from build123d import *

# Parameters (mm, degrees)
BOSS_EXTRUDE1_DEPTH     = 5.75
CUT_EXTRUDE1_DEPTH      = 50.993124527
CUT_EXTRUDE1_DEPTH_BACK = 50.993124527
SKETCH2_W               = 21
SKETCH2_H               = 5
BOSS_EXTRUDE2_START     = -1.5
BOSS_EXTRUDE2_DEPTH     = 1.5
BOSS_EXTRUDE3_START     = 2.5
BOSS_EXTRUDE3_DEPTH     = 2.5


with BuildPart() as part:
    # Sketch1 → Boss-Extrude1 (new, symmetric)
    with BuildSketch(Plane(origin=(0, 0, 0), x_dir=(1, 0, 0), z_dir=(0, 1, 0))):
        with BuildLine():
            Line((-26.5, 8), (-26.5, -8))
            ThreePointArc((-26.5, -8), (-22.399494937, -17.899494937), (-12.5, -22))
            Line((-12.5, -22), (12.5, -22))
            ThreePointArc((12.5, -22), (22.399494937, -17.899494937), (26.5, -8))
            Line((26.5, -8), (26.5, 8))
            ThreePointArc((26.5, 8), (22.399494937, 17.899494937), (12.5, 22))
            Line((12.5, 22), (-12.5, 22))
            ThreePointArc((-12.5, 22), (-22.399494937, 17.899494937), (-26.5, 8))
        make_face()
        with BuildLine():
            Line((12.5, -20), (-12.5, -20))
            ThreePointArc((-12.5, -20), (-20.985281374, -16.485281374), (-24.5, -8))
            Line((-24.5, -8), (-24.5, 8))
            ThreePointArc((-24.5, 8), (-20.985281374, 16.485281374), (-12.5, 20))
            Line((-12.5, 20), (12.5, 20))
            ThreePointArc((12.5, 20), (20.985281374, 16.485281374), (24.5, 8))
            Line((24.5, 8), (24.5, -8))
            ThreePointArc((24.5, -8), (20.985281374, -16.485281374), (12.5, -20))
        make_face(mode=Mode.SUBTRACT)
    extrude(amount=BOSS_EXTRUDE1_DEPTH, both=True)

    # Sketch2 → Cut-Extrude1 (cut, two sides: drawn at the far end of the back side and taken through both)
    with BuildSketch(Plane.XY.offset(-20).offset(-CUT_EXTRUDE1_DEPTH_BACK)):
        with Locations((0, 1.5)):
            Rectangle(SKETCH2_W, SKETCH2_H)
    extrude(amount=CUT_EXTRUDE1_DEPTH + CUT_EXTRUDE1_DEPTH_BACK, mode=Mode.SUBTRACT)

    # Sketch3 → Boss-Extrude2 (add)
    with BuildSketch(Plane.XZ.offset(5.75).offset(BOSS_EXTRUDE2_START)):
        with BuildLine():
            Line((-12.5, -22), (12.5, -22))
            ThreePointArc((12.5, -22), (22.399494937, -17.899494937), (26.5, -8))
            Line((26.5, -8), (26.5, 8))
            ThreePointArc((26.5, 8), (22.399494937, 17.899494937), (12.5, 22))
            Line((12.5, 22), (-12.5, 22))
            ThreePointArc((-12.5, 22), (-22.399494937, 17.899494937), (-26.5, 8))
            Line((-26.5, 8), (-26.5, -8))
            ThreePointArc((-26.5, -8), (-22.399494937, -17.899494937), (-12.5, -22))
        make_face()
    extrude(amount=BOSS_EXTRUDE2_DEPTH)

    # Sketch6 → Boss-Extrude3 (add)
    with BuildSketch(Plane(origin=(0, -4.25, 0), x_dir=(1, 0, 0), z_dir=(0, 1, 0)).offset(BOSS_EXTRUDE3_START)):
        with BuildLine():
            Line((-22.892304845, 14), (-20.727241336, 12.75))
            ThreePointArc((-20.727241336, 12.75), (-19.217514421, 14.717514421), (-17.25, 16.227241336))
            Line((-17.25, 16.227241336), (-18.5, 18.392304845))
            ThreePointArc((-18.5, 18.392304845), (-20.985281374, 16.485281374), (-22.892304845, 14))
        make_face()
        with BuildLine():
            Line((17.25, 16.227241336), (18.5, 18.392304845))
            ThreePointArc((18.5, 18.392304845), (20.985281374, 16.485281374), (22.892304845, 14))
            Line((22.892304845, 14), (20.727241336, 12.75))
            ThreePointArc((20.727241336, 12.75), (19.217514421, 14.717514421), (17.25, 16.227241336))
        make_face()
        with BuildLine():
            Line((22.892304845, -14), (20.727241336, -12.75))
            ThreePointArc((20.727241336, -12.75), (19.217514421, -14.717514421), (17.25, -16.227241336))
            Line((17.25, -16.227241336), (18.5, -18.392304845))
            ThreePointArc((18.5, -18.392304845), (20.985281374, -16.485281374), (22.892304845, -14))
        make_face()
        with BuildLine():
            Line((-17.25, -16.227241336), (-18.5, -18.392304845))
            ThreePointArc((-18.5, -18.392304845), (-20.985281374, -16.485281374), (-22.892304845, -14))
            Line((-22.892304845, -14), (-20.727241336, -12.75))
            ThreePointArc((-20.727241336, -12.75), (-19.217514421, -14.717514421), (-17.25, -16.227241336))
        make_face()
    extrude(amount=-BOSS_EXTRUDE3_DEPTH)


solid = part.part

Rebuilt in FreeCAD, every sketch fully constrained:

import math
import FreeCAD as App
import Part
import Sketcher

V = App.Vector
Q = App.Units.Quantity

doc = App.newDocument("Part")
body = doc.addObject("PartDesign::Body", "Body")

# Sketch on XZ plane
sketch1 = doc.addObject("Sketcher::SketchObject", "Sketch")
body.addObject(sketch1)
sketch1.AttachmentSupport = (doc.XZ_Plane, [""])
sketch1.MapMode = "FlatFace"
sketch1.addGeometry(Part.LineSegment(V(-26.5, -8, 0), V(-26.5, 8, 0)), False)
sketch1.addGeometry(Part.ArcOfCircle(Part.Circle(V(-12.5, 8, 0), V(0, 0, 1), 14), math.radians(90), math.radians(180)), False)
sketch1.addGeometry(Part.LineSegment(V(-12.5, 22, 0), V(12.5, 22, 0)), False)
sketch1.addGeometry(Part.ArcOfCircle(Part.Circle(V(12.5, 8, 0), V(0, 0, 1), 14), math.radians(0), math.radians(90)), False)
sketch1.addGeometry(Part.LineSegment(V(26.5, 8, 0), V(26.5, -8, 0)), False)
sketch1.addGeometry(Part.ArcOfCircle(Part.Circle(V(12.5, -8, 0), V(0, 0, 1), 14), math.radians(-90), math.radians(0)), False)
sketch1.addGeometry(Part.LineSegment(V(12.5, -22, 0), V(-12.5, -22, 0)), False)
sketch1.addGeometry(Part.ArcOfCircle(Part.Circle(V(-12.5, -8, 0), V(0, 0, 1), 14), math.radians(180), math.radians(270)), False)
sketch1.addGeometry(Part.ArcOfCircle(Part.Circle(V(12.5, 8, 0), V(0, 0, 1), 12), math.radians(0), math.radians(90)), False)
sketch1.addGeometry(Part.LineSegment(V(12.5, 20, 0), V(-12.5, 20, 0)), False)
sketch1.addGeometry(Part.ArcOfCircle(Part.Circle(V(-12.5, 8, 0), V(0, 0, 1), 12), math.radians(90), math.radians(180)), False)
sketch1.addGeometry(Part.LineSegment(V(-24.5, 8, 0), V(-24.5, -8, 0)), False)
sketch1.addGeometry(Part.ArcOfCircle(Part.Circle(V(-12.5, -8, 0), V(0, 0, 1), 12), math.radians(-180), math.radians(-90)), False)
sketch1.addGeometry(Part.LineSegment(V(-12.5, -20, 0), V(12.5, -20, 0)), False)
sketch1.addGeometry(Part.ArcOfCircle(Part.Circle(V(12.5, -8, 0), V(0, 0, 1), 12), math.radians(-90), math.radians(0)), False)
sketch1.addGeometry(Part.LineSegment(V(24.5, -8, 0), V(24.5, 8, 0)), False)
sketch1.addConstraint(Sketcher.Constraint("Tangent", 0, 2, 1, 2))
sketch1.addConstraint(Sketcher.Constraint("Tangent", 1, 1, 2, 1))
sketch1.addConstraint(Sketcher.Constraint("Tangent", 2, 2, 3, 2))
sketch1.addConstraint(Sketcher.Constraint("Tangent", 3, 1, 4, 1))
sketch1.addConstraint(Sketcher.Constraint("Tangent", 4, 2, 5, 2))
sketch1.addConstraint(Sketcher.Constraint("Tangent", 5, 1, 6, 1))
sketch1.addConstraint(Sketcher.Constraint("Tangent", 6, 2, 7, 2))
sketch1.addConstraint(Sketcher.Constraint("Tangent", 7, 1, 0, 1))
sketch1.addConstraint(Sketcher.Constraint("Tangent", 8, 2, 9, 1))
sketch1.addConstraint(Sketcher.Constraint("Tangent", 9, 2, 10, 1))
sketch1.addConstraint(Sketcher.Constraint("Tangent", 10, 2, 11, 1))
sketch1.addConstraint(Sketcher.Constraint("Tangent", 11, 2, 12, 1))
sketch1.addConstraint(Sketcher.Constraint("Tangent", 12, 2, 13, 1))
sketch1.addConstraint(Sketcher.Constraint("Tangent", 13, 2, 14, 1))
sketch1.addConstraint(Sketcher.Constraint("Tangent", 14, 2, 15, 1))
sketch1.addConstraint(Sketcher.Constraint("Tangent", 15, 2, 8, 1))
sketch1.addConstraint(Sketcher.Constraint("Vertical", 0))
sketch1.addConstraint(Sketcher.Constraint("Horizontal", 2))
sketch1.addConstraint(Sketcher.Constraint("Vertical", 4))
sketch1.addConstraint(Sketcher.Constraint("Horizontal", 6))
sketch1.addConstraint(Sketcher.Constraint("Horizontal", 9))
sketch1.addConstraint(Sketcher.Constraint("Vertical", 11))
sketch1.addConstraint(Sketcher.Constraint("Horizontal", 13))
sketch1.addConstraint(Sketcher.Constraint("Vertical", 15))
sketch1.addConstraint(Sketcher.Constraint("Coincident", 8, 3, 3, 3))
sketch1.addConstraint(Sketcher.Constraint("Coincident", 10, 3, 1, 3))
sketch1.addConstraint(Sketcher.Constraint("Coincident", 12, 3, 7, 3))
sketch1.addConstraint(Sketcher.Constraint("Equal", 1, 3))
sketch1.addConstraint(Sketcher.Constraint("Equal", 3, 5))
sketch1.addConstraint(Sketcher.Constraint("Equal", 5, 7))
sketch1.addConstraint(Sketcher.Constraint("Equal", 12, 14))
sketch1.addConstraint(Sketcher.Constraint("Symmetric", 1, 3, 5, 3, -1, 1))
sketch1.addConstraint(Sketcher.Constraint("Radius", 1, 14.0))
sketch1.addConstraint(Sketcher.Constraint("Radius", 8, 12.0))
sketch1.addConstraint(Sketcher.Constraint("DistanceX", 2, 1, 2, 2, 25.0))
sketch1.addConstraint(Sketcher.Constraint("DistanceY", 0, 1, 0, 2, 16.0))
pad1 = doc.addObject("PartDesign::Pad", "Pad")
body.addObject(pad1)
pad1.Profile = sketch1
pad1.Length = 11.5
pad1.Midplane = True

# Sketch on XY plane
sketch2 = doc.addObject("Sketcher::SketchObject", "Sketch001")
body.addObject(sketch2)
sketch2.AttachmentSupport = (doc.XY_Plane, [""])
sketch2.MapMode = "FlatFace"
sketch2.AttachmentOffset = App.Placement(V(0, 0, -20), App.Rotation())
sketch2.addGeometry(Part.LineSegment(V(-10.5, 4, 0), V(-10.5, -1, 0)), False)
sketch2.addGeometry(Part.LineSegment(V(-10.5, -1, 0), V(10.5, -1, 0)), False)
sketch2.addGeometry(Part.LineSegment(V(10.5, -1, 0), V(10.5, 4, 0)), False)
sketch2.addGeometry(Part.LineSegment(V(10.5, 4, 0), V(-10.5, 4, 0)), False)
sketch2.addConstraint(Sketcher.Constraint("Coincident", 0, 2, 1, 1))
sketch2.addConstraint(Sketcher.Constraint("Coincident", 1, 2, 2, 1))
sketch2.addConstraint(Sketcher.Constraint("Coincident", 2, 2, 3, 1))
sketch2.addConstraint(Sketcher.Constraint("Coincident", 3, 2, 0, 1))
sketch2.addConstraint(Sketcher.Constraint("Vertical", 0))
sketch2.addConstraint(Sketcher.Constraint("Horizontal", 1))
sketch2.addConstraint(Sketcher.Constraint("Vertical", 2))
sketch2.addConstraint(Sketcher.Constraint("Horizontal", 3))
sketch2.addConstraint(Sketcher.Constraint("DistanceX", 1, 1, 1, 2, 21.0))
sketch2.addConstraint(Sketcher.Constraint("DistanceY", 0, 2, 0, 1, 5.0))
sketch2.addConstraint(Sketcher.Constraint("DistanceY", 0, 2, -1, 1, 1.0))
sketch2.addConstraint(Sketcher.Constraint("DistanceX", 0, 2, -1, 1, 10.5))
pocket1 = doc.addObject("PartDesign::Pocket", "Pocket")
body.addObject(pocket1)
pocket1.Profile = sketch2
pocket1.Type = "ThroughAll"
pocket1.Midplane = True

# Sketch on XZ plane
sketch3 = doc.addObject("Sketcher::SketchObject", "Sketch002")
body.addObject(sketch3)
sketch3.AttachmentSupport = (doc.XZ_Plane, [""])
sketch3.MapMode = "FlatFace"
sketch3.AttachmentOffset = App.Placement(V(0, 0, 4.25), App.Rotation())
sketch3.addGeometry(Part.LineSegment(V(-12.5, -22, 0), V(12.5, -22, 0)), False)
sketch3.addGeometry(Part.ArcOfCircle(Part.Circle(V(12.5, -8, 0), V(0, 0, 1), 14), math.radians(-90), math.radians(0)), False)
sketch3.addGeometry(Part.LineSegment(V(26.5, -8, 0), V(26.5, 8, 0)), False)
sketch3.addGeometry(Part.ArcOfCircle(Part.Circle(V(12.5, 8, 0), V(0, 0, 1), 14), math.radians(0), math.radians(90)), False)
sketch3.addGeometry(Part.LineSegment(V(12.5, 22, 0), V(-12.5, 22, 0)), False)
sketch3.addGeometry(Part.ArcOfCircle(Part.Circle(V(-12.5, 8, 0), V(0, 0, 1), 14), math.radians(90), math.radians(180)), False)
sketch3.addGeometry(Part.LineSegment(V(-26.5, 8, 0), V(-26.5, -8, 0)), False)
sketch3.addGeometry(Part.ArcOfCircle(Part.Circle(V(-12.5, -8, 0), V(0, 0, 1), 14), math.radians(180), math.radians(270)), False)
sketch3.addConstraint(Sketcher.Constraint("Tangent", 0, 2, 1, 1))
sketch3.addConstraint(Sketcher.Constraint("Tangent", 1, 2, 2, 1))
sketch3.addConstraint(Sketcher.Constraint("Tangent", 2, 2, 3, 1))
sketch3.addConstraint(Sketcher.Constraint("Tangent", 3, 2, 4, 1))
sketch3.addConstraint(Sketcher.Constraint("Tangent", 4, 2, 5, 1))
sketch3.addConstraint(Sketcher.Constraint("Tangent", 5, 2, 6, 1))
sketch3.addConstraint(Sketcher.Constraint("Tangent", 6, 2, 7, 1))
sketch3.addConstraint(Sketcher.Constraint("Tangent", 7, 2, 0, 1))
sketch3.addConstraint(Sketcher.Constraint("Horizontal", 0))
sketch3.addConstraint(Sketcher.Constraint("Vertical", 2))
sketch3.addConstraint(Sketcher.Constraint("Horizontal", 4))
sketch3.addConstraint(Sketcher.Constraint("Vertical", 6))
sketch3.addConstraint(Sketcher.Constraint("Equal", 1, 3))
sketch3.addConstraint(Sketcher.Constraint("Equal", 3, 5))
sketch3.addConstraint(Sketcher.Constraint("Equal", 5, 7))
sketch3.addConstraint(Sketcher.Constraint("Symmetric", 1, 3, 5, 3, -1, 1))
sketch3.addConstraint(Sketcher.Constraint("Radius", 1, 14.0))
sketch3.addConstraint(Sketcher.Constraint("DistanceX", 0, 1, 0, 2, 25.0))
sketch3.addConstraint(Sketcher.Constraint("DistanceY", 2, 1, 2, 2, 16.0))
pad2 = doc.addObject("PartDesign::Pad", "Pad001")
body.addObject(pad2)
pad2.Profile = sketch3
pad2.Length = 1.5

# Sketch on XZ plane
sketch4 = doc.addObject("Sketcher::SketchObject", "Sketch003")
body.addObject(sketch4)
sketch4.AttachmentSupport = (doc.XZ_Plane, [""])
sketch4.MapMode = "FlatFace"
sketch4.AttachmentOffset = App.Placement(V(0, 0, 1.75), App.Rotation())
sketch4.addGeometry(Part.LineSegment(V(-22.892305, -14, 0), V(-20.727241, -12.75, 0)), False)
sketch4.addGeometry(Part.ArcOfCircle(Part.Circle(V(-12.5, -8, 0), V(0, 0, 1), 9.5), math.radians(-150), math.radians(-120)), False)
sketch4.addGeometry(Part.LineSegment(V(-17.25, -16.227241, 0), V(-18.5, -18.392305, 0)), False)
sketch4.addGeometry(Part.ArcOfCircle(Part.Circle(V(-12.5, -8, 0), V(0, 0, 1), 12), math.radians(-150), math.radians(-120)), False)
sketch4.addGeometry(Part.LineSegment(V(18.5, -18.392305, 0), V(17.25, -16.227241, 0)), False)
sketch4.addGeometry(Part.ArcOfCircle(Part.Circle(V(12.5, -8, 0), V(0, 0, 1), 9.5), math.radians(-60), math.radians(-30)), False)
sketch4.addGeometry(Part.LineSegment(V(20.727241, -12.75, 0), V(22.892305, -14, 0)), False)
sketch4.addGeometry(Part.ArcOfCircle(Part.Circle(V(12.5, -8, 0), V(0, 0, 1), 12), math.radians(-60), math.radians(-30)), False)
sketch4.addGeometry(Part.LineSegment(V(22.892305, 14, 0), V(20.727241, 12.75, 0)), False)
sketch4.addGeometry(Part.ArcOfCircle(Part.Circle(V(12.5, 8, 0), V(0, 0, 1), 9.5), math.radians(30), math.radians(60)), False)
sketch4.addGeometry(Part.LineSegment(V(17.25, 16.227241, 0), V(18.5, 18.392305, 0)), False)
sketch4.addGeometry(Part.ArcOfCircle(Part.Circle(V(12.5, 8, 0), V(0, 0, 1), 12), math.radians(30), math.radians(60)), False)
sketch4.addGeometry(Part.LineSegment(V(-18.5, 18.392305, 0), V(-17.25, 16.227241, 0)), False)
sketch4.addGeometry(Part.ArcOfCircle(Part.Circle(V(-12.5, 8, 0), V(0, 0, 1), 9.5), math.radians(120), math.radians(150)), False)
sketch4.addGeometry(Part.LineSegment(V(-20.727241, 12.75, 0), V(-22.892305, 14, 0)), False)
sketch4.addGeometry(Part.ArcOfCircle(Part.Circle(V(-12.5, 8, 0), V(0, 0, 1), 12), math.radians(120), math.radians(150)), False)
sketch4.addConstraint(Sketcher.Constraint("Coincident", 0, 2, 1, 1))
sketch4.addConstraint(Sketcher.Constraint("Coincident", 1, 2, 2, 1))
sketch4.addConstraint(Sketcher.Constraint("Coincident", 2, 2, 3, 2))
sketch4.addConstraint(Sketcher.Constraint("Coincident", 3, 1, 0, 1))
sketch4.addConstraint(Sketcher.Constraint("Coincident", 4, 2, 5, 1))
sketch4.addConstraint(Sketcher.Constraint("Coincident", 5, 2, 6, 1))
sketch4.addConstraint(Sketcher.Constraint("Coincident", 6, 2, 7, 2))
sketch4.addConstraint(Sketcher.Constraint("Coincident", 7, 1, 4, 1))
sketch4.addConstraint(Sketcher.Constraint("Coincident", 8, 2, 9, 1))
sketch4.addConstraint(Sketcher.Constraint("Coincident", 9, 2, 10, 1))
sketch4.addConstraint(Sketcher.Constraint("Coincident", 10, 2, 11, 2))
sketch4.addConstraint(Sketcher.Constraint("Coincident", 11, 1, 8, 1))
sketch4.addConstraint(Sketcher.Constraint("Coincident", 12, 2, 13, 1))
sketch4.addConstraint(Sketcher.Constraint("Coincident", 13, 2, 14, 1))
sketch4.addConstraint(Sketcher.Constraint("Coincident", 14, 2, 15, 2))
sketch4.addConstraint(Sketcher.Constraint("Coincident", 15, 1, 12, 1))
sketch4.addConstraint(Sketcher.Constraint("Coincident", 3, 3, 1, 3))
sketch4.addConstraint(Sketcher.Constraint("Coincident", 7, 3, 5, 3))
sketch4.addConstraint(Sketcher.Constraint("Coincident", 11, 3, 9, 3))
sketch4.addConstraint(Sketcher.Constraint("Coincident", 15, 3, 13, 3))
sketch4.addConstraint(Sketcher.Constraint("Equal", 1, 5))
sketch4.addConstraint(Sketcher.Constraint("Equal", 3, 7))
sketch4.addConstraint(Sketcher.Constraint("Equal", 5, 9))
sketch4.addConstraint(Sketcher.Constraint("Equal", 7, 11))
sketch4.addConstraint(Sketcher.Constraint("Equal", 9, 13))
sketch4.addConstraint(Sketcher.Constraint("Equal", 11, 15))
sketch4.addConstraint(Sketcher.Constraint("Symmetric", 1, 3, 9, 3, -1, 1))
sketch4.addConstraint(Sketcher.Constraint("Symmetric", 5, 3, 13, 3, -1, 1))
sketch4.addConstraint(Sketcher.Constraint("Symmetric", 1, 3, 5, 3, -2))
sketch4.addConstraint(Sketcher.Constraint("Perpendicular", 0, 4))
sketch4.addConstraint(Sketcher.Constraint("Perpendicular", 2, 6))
sketch4.addConstraint(Sketcher.Constraint("Perpendicular", 4, 8))
sketch4.addConstraint(Sketcher.Constraint("Perpendicular", 6, 10))
sketch4.addConstraint(Sketcher.Constraint("Perpendicular", 8, 12))
sketch4.addConstraint(Sketcher.Constraint("Perpendicular", 10, 14))
sketch4.addConstraint(Sketcher.Constraint("Horizontal", 1, 2, 4, 2))
sketch4.addConstraint(Sketcher.Constraint("Horizontal", 0, 2, 5, 2))
sketch4.addConstraint(Sketcher.Constraint("Horizontal", 3, 1, 6, 2))
sketch4.addConstraint(Sketcher.Constraint("Horizontal", 9, 2, 12, 2))
sketch4.addConstraint(Sketcher.Constraint("Horizontal", 8, 2, 13, 2))
sketch4.addConstraint(Sketcher.Constraint("Vertical", 5, 2, 8, 2))
sketch4.addConstraint(Sketcher.Constraint("Vertical", 4, 2, 9, 2))
sketch4.addConstraint(Sketcher.Constraint("Radius", 3, 12.0))
sketch4.addConstraint(Sketcher.Constraint("Radius", 1, 9.5))
sketch4.addConstraint(Sketcher.Constraint("Angle", 0, Q("30 deg")))
sketch4.addConstraint(Sketcher.Constraint("DistanceY", 1, 3, -1, 1, 8.0))
sketch4.addConstraint(Sketcher.Constraint("DistanceY", 3, 1, -1, 1, 14.0))
sketch4.addConstraint(Sketcher.Constraint("DistanceX", 1, 3, 5, 3, 25.0))
sketch4.addConstraint(Sketcher.Constraint("DistanceX", 2, 2, 3, 3, 6.0))
pad3 = doc.addObject("PartDesign::Pad", "Pad002")
body.addObject(pad3)
pad3.Profile = sketch4
pad3.Length = 2.5

doc.recompute()
